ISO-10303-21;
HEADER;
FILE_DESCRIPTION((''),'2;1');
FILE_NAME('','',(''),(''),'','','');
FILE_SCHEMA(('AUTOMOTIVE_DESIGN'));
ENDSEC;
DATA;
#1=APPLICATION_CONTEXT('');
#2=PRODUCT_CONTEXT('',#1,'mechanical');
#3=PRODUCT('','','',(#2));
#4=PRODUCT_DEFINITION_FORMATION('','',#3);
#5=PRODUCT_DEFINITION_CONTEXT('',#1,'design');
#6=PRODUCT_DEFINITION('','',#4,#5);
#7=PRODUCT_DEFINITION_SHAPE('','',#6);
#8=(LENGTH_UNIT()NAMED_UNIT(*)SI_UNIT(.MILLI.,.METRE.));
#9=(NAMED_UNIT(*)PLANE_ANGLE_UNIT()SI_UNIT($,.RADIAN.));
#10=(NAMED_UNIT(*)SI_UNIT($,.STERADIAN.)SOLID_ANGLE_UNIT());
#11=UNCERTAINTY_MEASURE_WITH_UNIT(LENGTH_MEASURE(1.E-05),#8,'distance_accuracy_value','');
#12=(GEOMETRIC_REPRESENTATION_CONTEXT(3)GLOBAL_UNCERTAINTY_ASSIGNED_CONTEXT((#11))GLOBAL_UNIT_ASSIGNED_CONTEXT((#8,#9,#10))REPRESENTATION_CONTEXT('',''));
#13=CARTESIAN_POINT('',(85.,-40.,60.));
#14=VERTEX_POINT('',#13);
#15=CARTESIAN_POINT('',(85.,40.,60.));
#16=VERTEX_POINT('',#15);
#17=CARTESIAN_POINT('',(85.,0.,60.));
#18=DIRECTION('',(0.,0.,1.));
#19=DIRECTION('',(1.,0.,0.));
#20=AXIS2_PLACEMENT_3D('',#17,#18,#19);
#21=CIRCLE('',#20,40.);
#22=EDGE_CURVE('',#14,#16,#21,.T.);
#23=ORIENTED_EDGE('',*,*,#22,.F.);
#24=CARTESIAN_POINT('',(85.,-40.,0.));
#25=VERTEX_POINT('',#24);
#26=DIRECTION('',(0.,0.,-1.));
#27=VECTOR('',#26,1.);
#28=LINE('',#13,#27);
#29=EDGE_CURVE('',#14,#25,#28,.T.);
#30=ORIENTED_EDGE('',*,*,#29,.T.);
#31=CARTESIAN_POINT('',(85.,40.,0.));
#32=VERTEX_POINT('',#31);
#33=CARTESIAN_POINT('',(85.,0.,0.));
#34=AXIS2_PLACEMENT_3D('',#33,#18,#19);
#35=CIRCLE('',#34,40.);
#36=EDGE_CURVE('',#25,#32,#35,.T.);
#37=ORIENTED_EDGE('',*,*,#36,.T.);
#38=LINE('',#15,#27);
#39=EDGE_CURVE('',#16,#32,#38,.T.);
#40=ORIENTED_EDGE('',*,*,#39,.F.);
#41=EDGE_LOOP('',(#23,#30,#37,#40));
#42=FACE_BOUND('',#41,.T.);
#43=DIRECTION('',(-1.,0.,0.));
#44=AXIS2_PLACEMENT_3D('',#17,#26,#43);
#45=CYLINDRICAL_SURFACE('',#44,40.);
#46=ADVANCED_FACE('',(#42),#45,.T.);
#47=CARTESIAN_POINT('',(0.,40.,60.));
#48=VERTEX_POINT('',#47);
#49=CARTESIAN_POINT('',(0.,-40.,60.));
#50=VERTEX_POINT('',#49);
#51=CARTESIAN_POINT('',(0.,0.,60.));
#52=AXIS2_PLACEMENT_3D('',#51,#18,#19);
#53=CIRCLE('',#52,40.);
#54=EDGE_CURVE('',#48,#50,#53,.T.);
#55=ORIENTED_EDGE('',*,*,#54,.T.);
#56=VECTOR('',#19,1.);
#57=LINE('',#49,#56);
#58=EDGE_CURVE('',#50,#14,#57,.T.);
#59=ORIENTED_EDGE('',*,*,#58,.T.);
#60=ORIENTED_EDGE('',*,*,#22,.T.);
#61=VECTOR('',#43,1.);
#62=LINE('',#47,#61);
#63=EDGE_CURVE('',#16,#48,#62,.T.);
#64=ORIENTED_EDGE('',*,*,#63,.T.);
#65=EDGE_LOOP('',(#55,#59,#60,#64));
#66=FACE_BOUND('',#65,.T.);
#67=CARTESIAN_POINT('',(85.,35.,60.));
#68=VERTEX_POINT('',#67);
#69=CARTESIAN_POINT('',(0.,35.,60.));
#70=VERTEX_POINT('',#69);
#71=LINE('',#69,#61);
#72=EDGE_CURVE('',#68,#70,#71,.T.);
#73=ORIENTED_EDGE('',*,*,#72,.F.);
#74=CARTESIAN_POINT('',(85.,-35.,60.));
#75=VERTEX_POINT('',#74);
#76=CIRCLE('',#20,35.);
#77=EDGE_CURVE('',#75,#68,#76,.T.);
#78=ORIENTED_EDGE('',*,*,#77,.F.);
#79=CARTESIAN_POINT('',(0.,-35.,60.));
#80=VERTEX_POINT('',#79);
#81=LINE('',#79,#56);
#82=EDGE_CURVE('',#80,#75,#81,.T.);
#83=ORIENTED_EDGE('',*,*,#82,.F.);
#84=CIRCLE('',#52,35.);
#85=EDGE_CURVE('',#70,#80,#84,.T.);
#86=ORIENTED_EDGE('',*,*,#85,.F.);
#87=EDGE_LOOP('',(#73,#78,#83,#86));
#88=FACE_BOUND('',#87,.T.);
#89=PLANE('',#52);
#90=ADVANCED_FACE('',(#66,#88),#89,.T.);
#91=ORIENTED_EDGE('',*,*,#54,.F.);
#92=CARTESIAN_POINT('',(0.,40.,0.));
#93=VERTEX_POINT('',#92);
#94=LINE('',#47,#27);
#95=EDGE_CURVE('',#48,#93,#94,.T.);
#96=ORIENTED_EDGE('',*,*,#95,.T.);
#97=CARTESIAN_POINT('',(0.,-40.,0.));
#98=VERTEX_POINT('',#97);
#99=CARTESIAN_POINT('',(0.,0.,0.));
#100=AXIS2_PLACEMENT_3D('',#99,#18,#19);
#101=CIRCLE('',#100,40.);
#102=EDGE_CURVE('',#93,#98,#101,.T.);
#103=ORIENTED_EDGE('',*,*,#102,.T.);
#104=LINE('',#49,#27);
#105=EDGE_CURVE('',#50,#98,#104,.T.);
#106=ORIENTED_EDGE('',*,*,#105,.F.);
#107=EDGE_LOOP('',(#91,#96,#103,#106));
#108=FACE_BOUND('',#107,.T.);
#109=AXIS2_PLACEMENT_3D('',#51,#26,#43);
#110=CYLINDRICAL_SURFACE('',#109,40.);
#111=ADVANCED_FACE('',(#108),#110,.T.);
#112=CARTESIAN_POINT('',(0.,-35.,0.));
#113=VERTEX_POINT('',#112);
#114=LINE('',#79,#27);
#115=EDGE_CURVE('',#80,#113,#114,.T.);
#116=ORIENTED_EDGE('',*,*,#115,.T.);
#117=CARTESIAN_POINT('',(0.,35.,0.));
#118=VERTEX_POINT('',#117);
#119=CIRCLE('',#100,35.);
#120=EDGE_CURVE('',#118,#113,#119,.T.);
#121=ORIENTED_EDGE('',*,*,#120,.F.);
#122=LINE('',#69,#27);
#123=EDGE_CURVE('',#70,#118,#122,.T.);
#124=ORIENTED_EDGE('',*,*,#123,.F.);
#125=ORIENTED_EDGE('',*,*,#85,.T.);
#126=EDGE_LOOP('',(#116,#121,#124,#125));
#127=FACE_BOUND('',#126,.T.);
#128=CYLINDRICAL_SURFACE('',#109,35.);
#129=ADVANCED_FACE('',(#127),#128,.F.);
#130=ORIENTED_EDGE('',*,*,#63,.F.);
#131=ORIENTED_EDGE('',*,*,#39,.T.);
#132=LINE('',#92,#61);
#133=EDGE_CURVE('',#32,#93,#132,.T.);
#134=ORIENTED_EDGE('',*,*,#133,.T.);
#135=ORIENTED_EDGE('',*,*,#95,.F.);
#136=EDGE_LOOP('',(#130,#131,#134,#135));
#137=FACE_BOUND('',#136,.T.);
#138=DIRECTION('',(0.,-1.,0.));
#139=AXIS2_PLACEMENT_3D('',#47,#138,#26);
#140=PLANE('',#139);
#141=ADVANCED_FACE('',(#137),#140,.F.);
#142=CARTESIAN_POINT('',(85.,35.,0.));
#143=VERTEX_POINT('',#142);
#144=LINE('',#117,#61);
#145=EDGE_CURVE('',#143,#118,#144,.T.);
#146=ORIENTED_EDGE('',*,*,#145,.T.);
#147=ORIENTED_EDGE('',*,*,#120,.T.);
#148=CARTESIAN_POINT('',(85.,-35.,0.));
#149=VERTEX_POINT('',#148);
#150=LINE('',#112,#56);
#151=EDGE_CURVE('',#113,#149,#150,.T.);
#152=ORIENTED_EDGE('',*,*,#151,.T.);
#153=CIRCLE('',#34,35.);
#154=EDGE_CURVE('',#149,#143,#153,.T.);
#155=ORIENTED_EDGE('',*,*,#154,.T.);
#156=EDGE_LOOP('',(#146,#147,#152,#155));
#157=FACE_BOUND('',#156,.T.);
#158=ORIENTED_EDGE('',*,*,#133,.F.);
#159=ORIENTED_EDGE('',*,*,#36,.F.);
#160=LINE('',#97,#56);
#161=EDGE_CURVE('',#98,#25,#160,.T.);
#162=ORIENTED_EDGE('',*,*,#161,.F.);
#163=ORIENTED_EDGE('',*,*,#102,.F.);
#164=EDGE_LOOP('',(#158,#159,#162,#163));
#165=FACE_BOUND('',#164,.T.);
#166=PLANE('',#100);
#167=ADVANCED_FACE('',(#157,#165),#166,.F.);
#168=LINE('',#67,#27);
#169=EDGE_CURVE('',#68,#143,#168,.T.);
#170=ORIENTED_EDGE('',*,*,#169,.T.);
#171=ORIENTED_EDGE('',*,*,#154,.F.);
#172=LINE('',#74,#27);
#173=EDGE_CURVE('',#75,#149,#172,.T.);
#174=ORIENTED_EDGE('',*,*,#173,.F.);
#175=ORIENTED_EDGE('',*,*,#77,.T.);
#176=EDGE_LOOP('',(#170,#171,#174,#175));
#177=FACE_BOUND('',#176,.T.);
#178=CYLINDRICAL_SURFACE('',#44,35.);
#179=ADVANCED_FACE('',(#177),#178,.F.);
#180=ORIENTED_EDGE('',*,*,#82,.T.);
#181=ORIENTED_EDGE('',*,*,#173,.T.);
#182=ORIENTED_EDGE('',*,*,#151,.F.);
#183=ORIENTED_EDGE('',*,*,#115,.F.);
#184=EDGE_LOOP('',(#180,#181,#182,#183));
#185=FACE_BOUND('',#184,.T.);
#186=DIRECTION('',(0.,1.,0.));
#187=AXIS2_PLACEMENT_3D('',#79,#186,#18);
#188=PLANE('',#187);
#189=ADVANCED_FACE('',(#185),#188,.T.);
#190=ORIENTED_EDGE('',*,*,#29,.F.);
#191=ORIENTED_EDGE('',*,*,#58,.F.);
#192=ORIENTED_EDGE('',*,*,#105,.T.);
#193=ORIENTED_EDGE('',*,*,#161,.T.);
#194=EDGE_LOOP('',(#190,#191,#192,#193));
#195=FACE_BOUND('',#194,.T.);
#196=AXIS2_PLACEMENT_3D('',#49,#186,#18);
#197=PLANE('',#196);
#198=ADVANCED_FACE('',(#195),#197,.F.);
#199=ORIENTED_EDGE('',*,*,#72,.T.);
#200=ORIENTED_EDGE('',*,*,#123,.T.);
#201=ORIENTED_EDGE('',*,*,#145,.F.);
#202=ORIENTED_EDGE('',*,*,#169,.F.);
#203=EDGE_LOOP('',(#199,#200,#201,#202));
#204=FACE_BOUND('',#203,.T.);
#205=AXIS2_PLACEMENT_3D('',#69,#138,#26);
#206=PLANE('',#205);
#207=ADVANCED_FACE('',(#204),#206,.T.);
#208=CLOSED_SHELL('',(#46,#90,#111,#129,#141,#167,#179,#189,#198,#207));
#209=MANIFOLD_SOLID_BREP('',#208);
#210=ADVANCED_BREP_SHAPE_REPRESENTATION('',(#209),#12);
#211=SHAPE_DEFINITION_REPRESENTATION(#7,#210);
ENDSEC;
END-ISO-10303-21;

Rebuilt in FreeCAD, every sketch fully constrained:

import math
import FreeCAD as App
import Part
import Sketcher

doc = App.newDocument("Part")
body = doc.addObject("PartDesign::Body", "Body")

# Sketch on XY plane
sketch1 = body.newObject("Sketcher::SketchObject", "Sketch")
sketch1.AttachmentSupport = (doc.getObject("XY_Plane"), [""])
sketch1.MapMode = "FlatFace"
sketch1.addGeometry(Part.LineSegment(App.Vector(85, 40, 0), App.Vector(0, 40, 0)), False)
sketch1.addGeometry(Part.ArcOfCircle(Part.Circle(App.Vector(0, 0, 0), App.Vector(0, 0, 1), 40), math.radians(90), math.radians(270)), False)
sketch1.addGeometry(Part.LineSegment(App.Vector(0, -40, 0), App.Vector(85, -40, 0)), False)
sketch1.addGeometry(Part.ArcOfCircle(Part.Circle(App.Vector(85, 0, 0), App.Vector(0, 0, 1), 40), math.radians(-90), math.radians(90)), False)
sketch1.addGeometry(Part.LineSegment(App.Vector(0, 35, 0), App.Vector(85, 35, 0)), False)
sketch1.addGeometry(Part.ArcOfCircle(Part.Circle(App.Vector(85, 0, 0), App.Vector(0, 0, 1), 35), math.radians(-90), math.radians(90)), False)
sketch1.addGeometry(Part.LineSegment(App.Vector(85, -35, 0), App.Vector(0, -35, 0)), False)
sketch1.addGeometry(Part.ArcOfCircle(Part.Circle(App.Vector(0, 0, 0), App.Vector(0, 0, 1), 35), math.radians(90), math.radians(270)), False)
sketch1.addConstraint(Sketcher.Constraint("Tangent", 0, 2, 1, 1))
sketch1.addConstraint(Sketcher.Constraint("Tangent", 1, 2, 2, 1))
sketch1.addConstraint(Sketcher.Constraint("Tangent", 2, 2, 3, 1))
sketch1.addConstraint(Sketcher.Constraint("Tangent", 3, 2, 0, 1))
sketch1.addConstraint(Sketcher.Constraint("Tangent", 4, 2, 5, 2))
sketch1.addConstraint(Sketcher.Constraint("Tangent", 5, 1, 6, 1))
sketch1.addConstraint(Sketcher.Constraint("Tangent", 6, 2, 7, 2))
sketch1.addConstraint(Sketcher.Constraint("Tangent", 7, 1, 4, 1))
sketch1.addConstraint(Sketcher.Constraint("Horizontal", 0))
sketch1.addConstraint(Sketcher.Constraint("Horizontal", 2))
sketch1.addConstraint(Sketcher.Constraint("Horizontal", 4))
sketch1.addConstraint(Sketcher.Constraint("Horizontal", 6))
sketch1.addConstraint(Sketcher.Constraint("Coincident", 1, 3, -1, 1))
sketch1.addConstraint(Sketcher.Constraint("Coincident", 7, 3, -1, 1))
sketch1.addConstraint(Sketcher.Constraint("Vertical", 5, 3, 2, 2))
sketch1.addConstraint(Sketcher.Constraint("Radius", 1, 40.0))
sketch1.addConstraint(Sketcher.Constraint("Radius", 5, 35.0))
sketch1.addConstraint(Sketcher.Constraint("DistanceX", 0, 2, 0, 1, 85.0))
pad1 = body.newObject("PartDesign::Pad", "Pad")
pad1.Profile = sketch1
pad1.Length = 60

doc.recompute()
